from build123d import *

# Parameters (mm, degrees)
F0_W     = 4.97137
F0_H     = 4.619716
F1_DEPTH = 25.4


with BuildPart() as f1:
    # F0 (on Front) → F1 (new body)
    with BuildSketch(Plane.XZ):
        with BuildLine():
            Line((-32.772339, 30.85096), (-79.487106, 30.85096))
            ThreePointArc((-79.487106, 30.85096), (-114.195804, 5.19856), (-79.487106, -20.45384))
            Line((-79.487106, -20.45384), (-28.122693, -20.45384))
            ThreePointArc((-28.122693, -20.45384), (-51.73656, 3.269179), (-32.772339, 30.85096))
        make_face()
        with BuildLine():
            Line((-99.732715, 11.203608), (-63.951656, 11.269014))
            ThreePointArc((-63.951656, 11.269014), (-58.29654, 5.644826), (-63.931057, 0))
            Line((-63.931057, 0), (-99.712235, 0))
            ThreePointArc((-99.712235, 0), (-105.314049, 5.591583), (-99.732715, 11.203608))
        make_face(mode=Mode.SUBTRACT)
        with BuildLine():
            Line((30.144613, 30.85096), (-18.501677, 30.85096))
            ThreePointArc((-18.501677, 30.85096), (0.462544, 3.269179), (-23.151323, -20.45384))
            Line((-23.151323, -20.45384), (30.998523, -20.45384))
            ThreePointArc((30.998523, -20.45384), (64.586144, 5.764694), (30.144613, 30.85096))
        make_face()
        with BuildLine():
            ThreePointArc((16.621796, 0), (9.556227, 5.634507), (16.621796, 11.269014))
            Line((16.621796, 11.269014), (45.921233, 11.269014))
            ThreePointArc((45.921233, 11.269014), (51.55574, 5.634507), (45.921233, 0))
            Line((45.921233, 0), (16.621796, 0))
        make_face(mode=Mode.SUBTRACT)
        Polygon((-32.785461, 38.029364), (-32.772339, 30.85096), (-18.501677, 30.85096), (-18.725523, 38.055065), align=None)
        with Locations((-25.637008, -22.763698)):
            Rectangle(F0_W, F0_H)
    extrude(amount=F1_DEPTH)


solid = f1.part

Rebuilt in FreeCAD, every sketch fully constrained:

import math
import FreeCAD as App
import Part
import Sketcher

V = App.Vector
Q = App.Units.Quantity

doc = App.newDocument("Part")
body = doc.addObject("PartDesign::Body", "Body")
body.AllowCompound = True

# Sketch on XZ plane
sketch1 = body.newObject("Sketcher::SketchObject", "Sketch")
sketch1.AttachmentSupport = (doc.getObject("XZ_Plane"), [""])
sketch1.MapMode = "FlatFace"
sketch1.addGeometry(Part.LineSegment(V(-32.772339, 30.85096, 0), V(-79.487106, 30.85096, 0)), False)
sketch1.addGeometry(Part.ArcOfCircle(Part.Circle(V(-87.361906, 5.19856, 0), V(0, 0, 1), 26.833898), math.radians(72.934508), math.radians(287.065492)), False)
sketch1.addGeometry(Part.LineSegment(V(-79.487106, -20.45384, 0), V(-28.122693, -20.45384, 0)), False)
sketch1.addGeometry(Part.ArcOfCircle(Part.Circle(V(-25.637008, 5.634526, 0), V(0, 0, 1), 26.206516), math.radians(105.799578), math.radians(264.55732)), False)
sketch1.addGeometry(Part.ArcOfCircle(Part.Circle(V(-99.712236, 5.601823, 0), V(0, 0, 1), 5.601823), math.radians(90.209465), math.radians(270.000007)), False)
sketch1.addGeometry(Part.LineSegment(V(-99.732715, 11.203608, 0), V(-63.951656, 11.269014, 0)), False)
sketch1.addGeometry(Part.ArcOfCircle(Part.Circle(V(-63.931056, 5.634526, 0), V(0, 0, 1), 5.634526), math.radians(-90.000006), math.radians(90.209471)), False)
sketch1.addGeometry(Part.LineSegment(V(-63.931057, 0, 0), V(-99.712235, 0, 0)), False)
sketch1.addGeometry(Part.LineSegment(V(30.144613, 30.85096, 0), V(-18.501677, 30.85096, 0)), False)
sketch1.addGeometry(Part.ArcOfCircle(Part.Circle(V(-25.637008, 5.634526, 0), V(0, 0, 1), 26.206516), math.radians(-84.55732), math.radians(74.200422)), False)
sketch1.addGeometry(Part.LineSegment(V(-23.151323, -20.45384, 0), V(30.998523, -20.45384, 0)), False)
sketch1.addGeometry(Part.ArcOfCircle(Part.Circle(V(37.905861, 5.320631, 0), V(0, 0, 1), 26.683978), math.radians(-105.00226), math.radians(106.90933)), False)
sketch1.addGeometry(Part.LineSegment(V(45.921233, 0, 0), V(16.621796, 0, 0)), False)
sketch1.addGeometry(Part.ArcOfCircle(Part.Circle(V(15.335658, 5.634507, 0), V(0, 0, 1), 5.779431), math.radians(77.141903), math.radians(282.858097)), False)
sketch1.addGeometry(Part.LineSegment(V(16.621796, 11.269014, 0), V(45.921233, 11.269014, 0)), False)
sketch1.addGeometry(Part.ArcOfCircle(Part.Circle(V(45.921233, 5.634507, 0), V(0, 0, 1), 5.634507), math.radians(-90), math.radians(90)), False)
sketch1.addGeometry(Part.LineSegment(V(-32.785461, 38.029364, 0), V(-32.772339, 30.85096, 0)), False)
sketch1.addGeometry(Part.LineSegment(V(-32.772339, 30.85096, 0), V(-18.501677, 30.85096, 0)), False)
sketch1.addGeometry(Part.LineSegment(V(-18.501677, 30.85096, 0), V(-18.725523, 38.055065, 0)), False)
sketch1.addGeometry(Part.LineSegment(V(-18.725523, 38.055065, 0), V(-32.785461, 38.029364, 0)), False)
sketch1.addGeometry(Part.LineSegment(V(-28.122693, -20.45384, 0), V(-28.122693, -25.073556, 0)), False)
sketch1.addGeometry(Part.LineSegment(V(-28.122693, -25.073556, 0), V(-23.151323, -25.073556, 0)), False)
sketch1.addGeometry(Part.LineSegment(V(-23.151323, -25.073556, 0), V(-23.151323, -20.45384, 0)), False)
sketch1.addGeometry(Part.LineSegment(V(-23.151323, -20.45384, 0), V(-28.122693, -20.45384, 0)), False)
sketch1.addConstraint(Sketcher.Constraint("Coincident", 0, 2, 1, 1))
sketch1.addConstraint(Sketcher.Constraint("Coincident", 1, 2, 2, 1))
sketch1.addConstraint(Sketcher.Constraint("Coincident", 2, 2, 3, 2))
sketch1.addConstraint(Sketcher.Constraint("Coincident", 3, 1, 0, 1))
sketch1.addConstraint(Sketcher.Constraint("Coincident", 4, 1, 5, 1))
sketch1.addConstraint(Sketcher.Constraint("Coincident", 5, 2, 6, 2))
sketch1.addConstraint(Sketcher.Constraint("Coincident", 6, 1, 7, 1))
sketch1.addConstraint(Sketcher.Constraint("Coincident", 7, 2, 4, 2))
sketch1.addConstraint(Sketcher.Constraint("Coincident", 8, 2, 9, 2))
sketch1.addConstraint(Sketcher.Constraint("Coincident", 9, 1, 10, 1))
sketch1.addConstraint(Sketcher.Constraint("Coincident", 10, 2, 11, 1))
sketch1.addConstraint(Sketcher.Constraint("Coincident", 11, 2, 8, 1))
sketch1.addConstraint(Sketcher.Constraint("Coincident", 12, 2, 13, 2))
sketch1.addConstraint(Sketcher.Constraint("Coincident", 13, 1, 14, 1))
sketch1.addConstraint(Sketcher.Constraint("Coincident", 14, 2, 15, 2))
sketch1.addConstraint(Sketcher.Constraint("Coincident", 15, 1, 12, 1))
sketch1.addConstraint(Sketcher.Constraint("Coincident", 16, 2, 17, 1))
sketch1.addConstraint(Sketcher.Constraint("Coincident", 17, 2, 18, 1))
sketch1.addConstraint(Sketcher.Constraint("Coincident", 18, 2, 19, 1))
sketch1.addConstraint(Sketcher.Constraint("Coincident", 19, 2, 16, 1))
sketch1.addConstraint(Sketcher.Constraint("Coincident", 20, 2, 21, 1))
sketch1.addConstraint(Sketcher.Constraint("Coincident", 21, 2, 22, 1))
sketch1.addConstraint(Sketcher.Constraint("Coincident", 22, 2, 23, 1))
sketch1.addConstraint(Sketcher.Constraint("Coincident", 23, 2, 20, 1))
sketch1.addConstraint(Sketcher.Constraint("Horizontal", 0))
sketch1.addConstraint(Sketcher.Constraint("Horizontal", 2))
sketch1.addConstraint(Sketcher.Constraint("Horizontal", 7))
sketch1.addConstraint(Sketcher.Constraint("Horizontal", 8))
sketch1.addConstraint(Sketcher.Constraint("Horizontal", 10))
sketch1.addConstraint(Sketcher.Constraint("Horizontal", 12))
sketch1.addConstraint(Sketcher.Constraint("Horizontal", 14))
sketch1.addConstraint(Sketcher.Constraint("Horizontal", 17))
sketch1.addConstraint(Sketcher.Constraint("Vertical", 20))
sketch1.addConstraint(Sketcher.Constraint("Horizontal", 21))
sketch1.addConstraint(Sketcher.Constraint("Vertical", 22))
sketch1.addConstraint(Sketcher.Constraint("Horizontal", 23))
sketch1.addConstraint(Sketcher.Constraint("Coincident", 9, 3, 3, 3))
sketch1.addConstraint(Sketcher.Constraint("Coincident", 16, 2, 3, 1))
sketch1.addConstraint(Sketcher.Constraint("Coincident", 17, 2, 8, 2))
sketch1.addConstraint(Sketcher.Constraint("Coincident", 22, 2, 9, 1))
sketch1.addConstraint(Sketcher.Constraint("Coincident", 23, 2, 2, 2))
sketch1.addConstraint(Sketcher.Constraint("PointOnObject", 6, 1, -1))
sketch1.addConstraint(Sketcher.Constraint("PointOnObject", 12, 2, -1))
sketch1.addConstraint(Sketcher.Constraint("Radius", 1, 26.833898))
sketch1.addConstraint(Sketcher.Constraint("Radius", 13, 5.779431))
sketch1.addConstraint(Sketcher.Constraint("Radius", 3, 26.206516))
sketch1.addConstraint(Sketcher.Constraint("Radius", 4, 5.601823))
sketch1.addConstraint(Sketcher.Constraint("Radius", 6, 5.634526))
sketch1.addConstraint(Sketcher.Constraint("Radius", 9, 26.206516))
sketch1.addConstraint(Sketcher.Constraint("Radius", 11, 26.683978))
sketch1.addConstraint(Sketcher.Constraint("Radius", 15, 5.634507))
sketch1.addConstraint(Sketcher.Constraint("DistanceX", 7, 2, 7, 1, 35.781178))
sketch1.addConstraint(Sketcher.Constraint("DistanceX", 8, 2, 8, 1, 48.64629))
sketch1.addConstraint(Sketcher.Constraint("DistanceX", 21, 1, 21, 2, 4.97137))
sketch1.addConstraint(Sketcher.Constraint("DistanceX", 1, 3, 0, 2, 7.8748))
sketch1.addConstraint(Sketcher.Constraint("DistanceX", 0, 2, 9, 3, 53.850098))
sketch1.addConstraint(Sketcher.Constraint("DistanceX", 1, 3, 1, 2, 7.8748))
sketch1.addConstraint(Sketcher.Constraint("DistanceX", 5, 2, 6, 3, 0.0206))
sketch1.addConstraint(Sketcher.Constraint("DistanceX", 5, 2, 6, 1, 0.020599))
sketch1.addConstraint(Sketcher.Constraint("DistanceY", 19, 2, 18, 2, 0.025701))
sketch1.addConstraint(Sketcher.Constraint("Distance", 5, 35.781119))
sketch1.addConstraint(Sketcher.Constraint("Distance", 18, 7.207582))
sketch1.addConstraint(Sketcher.Constraint("Distance", 19, 14.059961))
sketch1.addConstraint(Sketcher.Constraint("DistanceX", 10, 1, 10, 2, 54.149846))
sketch1.addConstraint(Sketcher.Constraint("DistanceX", 12, 2, 12, 1, 29.299437))
sketch1.addConstraint(Sketcher.Constraint("DistanceX", 14, 1, 14, 2, 29.299437))
sketch1.addConstraint(Sketcher.Constraint("DistanceY", 20, 2, 20, 1, 4.619716))
sketch1.addConstraint(Sketcher.Constraint("DistanceY", -1, 1, 1, 3, 5.19856))
sketch1.addConstraint(Sketcher.Constraint("DistanceX", 3, 3, -1, 1, 25.637008))
sketch1.addConstraint(Sketcher.Constraint("DistanceX", 19, 2, -1, 1, 32.785461))
sketch1.addConstraint(Sketcher.Constraint("DistanceX", 4, 3, 1, 3, 12.35033))
sketch1.addConstraint(Sketcher.Constraint("DistanceX", 1, 3, 6, 3, 23.430849))
sketch1.addConstraint(Sketcher.Constraint("DistanceX", 11, 3, 15, 3, 8.015372))
sketch1.addConstraint(Sketcher.Constraint("DistanceX", 2, 2, 13, 3, 43.458351))
sketch1.addConstraint(Sketcher.Constraint("DistanceX", 13, 3, 12, 2, 1.286138))
pad1 = body.newObject("PartDesign::Pad", "Pad")
pad1.Profile = sketch1
pad1.Length = Q("1 in")

doc.recompute()
